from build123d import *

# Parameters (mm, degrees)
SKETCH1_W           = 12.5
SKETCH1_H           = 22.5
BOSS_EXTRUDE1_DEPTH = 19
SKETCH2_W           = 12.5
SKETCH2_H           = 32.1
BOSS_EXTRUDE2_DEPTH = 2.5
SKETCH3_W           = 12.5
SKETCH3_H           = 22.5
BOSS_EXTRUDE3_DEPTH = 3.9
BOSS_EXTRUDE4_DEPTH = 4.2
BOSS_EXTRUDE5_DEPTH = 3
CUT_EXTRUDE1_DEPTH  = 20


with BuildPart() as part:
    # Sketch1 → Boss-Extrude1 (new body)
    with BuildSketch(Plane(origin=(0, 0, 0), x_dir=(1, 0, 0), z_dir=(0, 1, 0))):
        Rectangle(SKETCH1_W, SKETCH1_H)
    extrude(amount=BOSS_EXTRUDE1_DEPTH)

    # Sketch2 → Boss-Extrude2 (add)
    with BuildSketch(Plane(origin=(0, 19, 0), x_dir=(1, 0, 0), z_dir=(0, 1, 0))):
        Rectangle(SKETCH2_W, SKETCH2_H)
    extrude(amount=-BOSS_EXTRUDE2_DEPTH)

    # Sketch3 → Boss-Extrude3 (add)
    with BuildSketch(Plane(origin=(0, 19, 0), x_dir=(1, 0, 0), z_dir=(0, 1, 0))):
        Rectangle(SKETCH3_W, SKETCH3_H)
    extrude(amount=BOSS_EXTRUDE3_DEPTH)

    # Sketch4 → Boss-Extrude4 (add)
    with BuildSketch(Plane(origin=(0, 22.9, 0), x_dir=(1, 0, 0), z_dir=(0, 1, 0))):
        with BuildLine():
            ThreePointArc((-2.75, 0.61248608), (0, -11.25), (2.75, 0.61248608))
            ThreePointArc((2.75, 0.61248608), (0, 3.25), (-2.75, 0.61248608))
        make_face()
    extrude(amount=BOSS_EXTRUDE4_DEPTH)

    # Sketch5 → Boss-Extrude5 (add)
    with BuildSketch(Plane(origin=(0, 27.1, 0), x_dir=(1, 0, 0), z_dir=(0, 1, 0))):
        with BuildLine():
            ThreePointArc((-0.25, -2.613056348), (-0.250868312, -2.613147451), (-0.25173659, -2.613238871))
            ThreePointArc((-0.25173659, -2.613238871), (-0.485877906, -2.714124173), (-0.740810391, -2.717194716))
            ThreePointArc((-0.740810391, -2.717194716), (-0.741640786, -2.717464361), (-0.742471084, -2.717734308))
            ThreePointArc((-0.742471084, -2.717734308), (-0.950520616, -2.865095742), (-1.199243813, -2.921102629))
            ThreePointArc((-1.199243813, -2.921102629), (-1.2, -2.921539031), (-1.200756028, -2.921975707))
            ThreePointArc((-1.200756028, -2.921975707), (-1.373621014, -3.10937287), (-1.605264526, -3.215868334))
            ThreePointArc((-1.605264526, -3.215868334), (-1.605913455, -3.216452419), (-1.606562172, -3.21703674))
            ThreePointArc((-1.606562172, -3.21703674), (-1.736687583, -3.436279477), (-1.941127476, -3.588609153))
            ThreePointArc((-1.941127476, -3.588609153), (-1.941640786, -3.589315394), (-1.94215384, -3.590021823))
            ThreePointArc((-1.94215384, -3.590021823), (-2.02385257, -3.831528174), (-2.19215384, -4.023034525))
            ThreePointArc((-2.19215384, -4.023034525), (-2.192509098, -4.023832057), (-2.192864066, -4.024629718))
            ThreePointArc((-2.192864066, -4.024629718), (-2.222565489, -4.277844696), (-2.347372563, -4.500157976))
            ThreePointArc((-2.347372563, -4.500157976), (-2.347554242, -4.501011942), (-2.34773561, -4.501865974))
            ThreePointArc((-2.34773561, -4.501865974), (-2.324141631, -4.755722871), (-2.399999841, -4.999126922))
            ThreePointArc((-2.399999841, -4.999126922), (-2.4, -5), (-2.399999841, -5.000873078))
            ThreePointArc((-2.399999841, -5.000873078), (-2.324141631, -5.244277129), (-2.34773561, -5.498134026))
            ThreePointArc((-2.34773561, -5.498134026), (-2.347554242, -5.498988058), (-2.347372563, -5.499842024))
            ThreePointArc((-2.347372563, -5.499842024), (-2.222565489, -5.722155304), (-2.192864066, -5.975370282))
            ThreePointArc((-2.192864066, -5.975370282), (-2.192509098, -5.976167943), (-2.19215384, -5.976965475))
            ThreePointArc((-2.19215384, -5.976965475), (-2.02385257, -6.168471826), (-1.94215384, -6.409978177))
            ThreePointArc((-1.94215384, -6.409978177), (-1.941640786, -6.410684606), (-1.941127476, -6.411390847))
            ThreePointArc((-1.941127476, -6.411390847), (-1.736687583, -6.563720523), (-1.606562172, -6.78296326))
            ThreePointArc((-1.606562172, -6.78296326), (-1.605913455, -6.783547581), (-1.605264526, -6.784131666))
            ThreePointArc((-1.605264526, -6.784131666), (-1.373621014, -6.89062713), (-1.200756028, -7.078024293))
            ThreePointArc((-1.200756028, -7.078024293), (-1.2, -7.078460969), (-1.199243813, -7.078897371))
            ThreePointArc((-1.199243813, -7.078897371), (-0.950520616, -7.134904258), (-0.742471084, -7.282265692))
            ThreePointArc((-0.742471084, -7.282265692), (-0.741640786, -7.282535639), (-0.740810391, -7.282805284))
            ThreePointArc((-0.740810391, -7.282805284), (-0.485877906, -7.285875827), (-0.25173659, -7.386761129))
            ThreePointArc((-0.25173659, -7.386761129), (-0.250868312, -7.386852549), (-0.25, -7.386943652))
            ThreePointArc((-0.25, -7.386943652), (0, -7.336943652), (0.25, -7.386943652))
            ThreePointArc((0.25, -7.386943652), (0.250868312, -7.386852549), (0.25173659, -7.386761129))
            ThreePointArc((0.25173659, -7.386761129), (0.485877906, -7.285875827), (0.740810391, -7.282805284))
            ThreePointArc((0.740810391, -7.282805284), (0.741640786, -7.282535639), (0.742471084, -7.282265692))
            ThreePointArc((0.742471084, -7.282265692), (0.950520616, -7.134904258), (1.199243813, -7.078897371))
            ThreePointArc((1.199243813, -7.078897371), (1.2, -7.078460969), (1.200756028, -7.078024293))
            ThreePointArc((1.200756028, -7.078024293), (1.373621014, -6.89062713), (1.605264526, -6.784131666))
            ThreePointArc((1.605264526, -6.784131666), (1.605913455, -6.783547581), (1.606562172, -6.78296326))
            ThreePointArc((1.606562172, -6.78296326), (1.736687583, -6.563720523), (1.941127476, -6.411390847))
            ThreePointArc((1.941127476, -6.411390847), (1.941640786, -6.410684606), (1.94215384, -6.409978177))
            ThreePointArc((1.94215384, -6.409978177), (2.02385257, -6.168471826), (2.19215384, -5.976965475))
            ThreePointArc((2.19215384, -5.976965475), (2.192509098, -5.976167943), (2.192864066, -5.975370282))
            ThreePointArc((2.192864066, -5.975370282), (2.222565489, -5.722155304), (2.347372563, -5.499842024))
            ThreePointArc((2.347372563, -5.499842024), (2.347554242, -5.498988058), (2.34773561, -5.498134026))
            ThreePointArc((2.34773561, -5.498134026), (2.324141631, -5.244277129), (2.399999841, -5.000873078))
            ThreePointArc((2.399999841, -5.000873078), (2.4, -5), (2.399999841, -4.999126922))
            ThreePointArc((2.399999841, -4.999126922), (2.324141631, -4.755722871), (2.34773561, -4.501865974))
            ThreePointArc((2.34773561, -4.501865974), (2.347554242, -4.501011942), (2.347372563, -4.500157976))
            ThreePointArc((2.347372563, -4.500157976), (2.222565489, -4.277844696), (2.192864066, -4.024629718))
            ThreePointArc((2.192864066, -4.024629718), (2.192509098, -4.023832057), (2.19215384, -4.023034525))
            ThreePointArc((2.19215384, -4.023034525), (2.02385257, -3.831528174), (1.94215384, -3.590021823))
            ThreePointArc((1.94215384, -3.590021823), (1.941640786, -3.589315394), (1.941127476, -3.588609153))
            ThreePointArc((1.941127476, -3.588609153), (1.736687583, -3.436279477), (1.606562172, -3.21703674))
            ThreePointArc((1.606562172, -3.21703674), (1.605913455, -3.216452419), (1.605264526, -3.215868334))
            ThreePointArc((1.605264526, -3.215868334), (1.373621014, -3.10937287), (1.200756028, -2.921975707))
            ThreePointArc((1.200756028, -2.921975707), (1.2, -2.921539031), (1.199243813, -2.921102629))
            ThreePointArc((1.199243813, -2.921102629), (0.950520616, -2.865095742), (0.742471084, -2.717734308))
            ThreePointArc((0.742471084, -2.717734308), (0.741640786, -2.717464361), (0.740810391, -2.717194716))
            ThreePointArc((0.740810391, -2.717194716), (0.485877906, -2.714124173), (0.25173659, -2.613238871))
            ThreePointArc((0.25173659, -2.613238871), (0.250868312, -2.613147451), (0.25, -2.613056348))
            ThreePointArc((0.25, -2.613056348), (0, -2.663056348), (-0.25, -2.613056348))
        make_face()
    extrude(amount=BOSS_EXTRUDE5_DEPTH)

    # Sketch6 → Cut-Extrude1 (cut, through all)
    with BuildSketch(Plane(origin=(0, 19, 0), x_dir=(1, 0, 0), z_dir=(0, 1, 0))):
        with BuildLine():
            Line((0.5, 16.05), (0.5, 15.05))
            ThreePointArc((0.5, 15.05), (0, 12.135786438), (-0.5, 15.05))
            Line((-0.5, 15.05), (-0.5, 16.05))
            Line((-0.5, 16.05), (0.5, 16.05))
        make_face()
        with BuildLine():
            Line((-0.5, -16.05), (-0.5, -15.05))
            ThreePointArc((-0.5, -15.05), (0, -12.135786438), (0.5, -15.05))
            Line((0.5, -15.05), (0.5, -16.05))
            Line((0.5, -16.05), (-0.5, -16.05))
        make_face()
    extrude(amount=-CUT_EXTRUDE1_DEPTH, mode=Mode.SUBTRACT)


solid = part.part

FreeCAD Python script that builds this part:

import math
import FreeCAD as App
import Part
import Sketcher
from FreeCAD import Vector


def add_polygon(sketch, points):
    """Adds a closed chain of lines whose ends are joined by coincident constraints."""
    first, n = sketch.GeometryCount, len(points)
    for a, b in zip(points, points[1:] + points[:1]):
        sketch.addGeometry(Part.LineSegment(App.Vector(*a, 0), App.Vector(*b, 0)), False)
    for i in range(n):
        sketch.addConstraint(Sketcher.Constraint("Coincident", first + i, 2, first + (i + 1) % n, 1))

doc = App.newDocument("Part")
body = doc.addObject("PartDesign::Body", "Body")

# Sketch on XZ plane
sketch1 = body.newObject("Sketcher::SketchObject", "Sketch")
sketch1.AttachmentSupport = (doc.getObject("XZ_Plane"), [""])
sketch1.MapMode = "FlatFace"
add_polygon(sketch1, [(-6.25, -11.25), (-6.25, 11.25), (6.25, 11.25), (6.25, -11.25)])  # lines 0-3
sketch1.addConstraint(Sketcher.Constraint("Vertical", 0))
sketch1.addConstraint(Sketcher.Constraint("Horizontal", 1))
sketch1.addConstraint(Sketcher.Constraint("Vertical", 2))
sketch1.addConstraint(Sketcher.Constraint("Horizontal", 3))
sketch1.addConstraint(Sketcher.Constraint("Symmetric", 0, 2, 2, 2, -1, 1))
sketch1.addConstraint(Sketcher.Constraint("DistanceX", 1, 1, 1, 2, 12.5))
sketch1.addConstraint(Sketcher.Constraint("DistanceY", 0, 1, 0, 2, 22.5))
pad1 = body.newObject("PartDesign::Pad", "Pad")
pad1.Profile = sketch1
pad1.Length = 19
pad1.Reversed = True

# Sketch on XZ plane
sketch2 = body.newObject("Sketcher::SketchObject", "Sketch001")
sketch2.AttachmentSupport = (doc.getObject("XZ_Plane"), [""])
sketch2.MapMode = "FlatFace"
sketch2.AttachmentOffset = App.Placement(Vector(0, 0, -19), App.Rotation())
add_polygon(sketch2, [(-6.25, -16.05), (-6.25, 16.05), (6.25, 16.05), (6.25, -16.05)])  # lines 0-3
sketch2.addConstraint(Sketcher.Constraint("Vertical", 0))
sketch2.addConstraint(Sketcher.Constraint("Horizontal", 1))
sketch2.addConstraint(Sketcher.Constraint("Vertical", 2))
sketch2.addConstraint(Sketcher.Constraint("Horizontal", 3))
sketch2.addConstraint(Sketcher.Constraint("Symmetric", 0, 2, 2, 2, -1, 1))
sketch2.addConstraint(Sketcher.Constraint("DistanceX", 1, 1, 1, 2, 12.5))
sketch2.addConstraint(Sketcher.Constraint("DistanceY", 0, 1, 0, 2, 32.1))
pad2 = body.newObject("PartDesign::Pad", "Pad001")
pad2.Profile = sketch2
pad2.Length = 2.5

# Sketch on XZ plane
sketch3 = body.newObject("Sketcher::SketchObject", "Sketch002")
sketch3.AttachmentSupport = (doc.getObject("XZ_Plane"), [""])
sketch3.MapMode = "FlatFace"
sketch3.AttachmentOffset = App.Placement(Vector(0, 0, -19), App.Rotation())
add_polygon(sketch3, [(-6.25, -11.25), (-6.25, 11.25), (6.25, 11.25), (6.25, -11.25)])  # lines 0-3
sketch3.addConstraint(Sketcher.Constraint("Vertical", 0))
sketch3.addConstraint(Sketcher.Constraint("Horizontal", 1))
sketch3.addConstraint(Sketcher.Constraint("Vertical", 2))
sketch3.addConstraint(Sketcher.Constraint("Horizontal", 3))
sketch3.addConstraint(Sketcher.Constraint("Symmetric", 0, 2, 2, 2, -1, 1))
sketch3.addConstraint(Sketcher.Constraint("DistanceX", 1, 1, 1, 2, 12.5))
sketch3.addConstraint(Sketcher.Constraint("DistanceY", 0, 1, 0, 2, 22.5))
pad3 = body.newObject("PartDesign::Pad", "Pad002")
pad3.Profile = sketch3
pad3.Length = 3.9
pad3.Reversed = True

# Sketch on XZ plane
sketch4 = body.newObject("Sketcher::SketchObject", "Sketch003")
sketch4.AttachmentSupport = (doc.getObject("XZ_Plane"), [""])
sketch4.MapMode = "FlatFace"
sketch4.AttachmentOffset = App.Placement(Vector(0, 0, -22.9), App.Rotation())
sketch4.addGeometry(Part.ArcOfCircle(Part.Circle(Vector(0, 5, 0), Vector(0, 0, 1), 6.25), math.radians(-63.896119), math.radians(243.896119)), False)
sketch4.addGeometry(Part.ArcOfCircle(Part.Circle(Vector(0, -0.497601, 0), Vector(0, 0, 1), 2.752399), math.radians(-177.607787), math.radians(-2.392213)), False)
sketch4.addConstraint(Sketcher.Constraint("Coincident", 0, 1, 1, 2))
sketch4.addConstraint(Sketcher.Constraint("Coincident", 1, 1, 0, 2))
sketch4.addConstraint(Sketcher.Constraint("Symmetric", 0, 1, 1, 1, -2))
sketch4.addConstraint(Sketcher.Constraint("Radius", 0, 6.25))
sketch4.addConstraint(Sketcher.Constraint("DistanceY", -1, 1, 0, 3, 5.0))
sketch4.addConstraint(Sketcher.Constraint("Radius", 1, 2.752399))
sketch4.addConstraint(Sketcher.Constraint("DistanceX", 1, 1, 0, 1, 5.5))
pad4 = body.newObject("PartDesign::Pad", "Pad003")
pad4.Profile = sketch4
pad4.Length = 4.2
pad4.Reversed = True

# Sketch on XZ plane
sketch5 = body.newObject("Sketcher::SketchObject", "Sketch004")
sketch5.AttachmentSupport = (doc.getObject("XZ_Plane"), [""])
sketch5.MapMode = "FlatFace"
sketch5.AttachmentOffset = App.Placement(Vector(0, 0, -27.1), App.Rotation())
sketch5.addGeometry(Part.ArcOfCircle(Part.Circle(Vector(-0.00095, 4.990963, 0), Vector(0, 0, 1), 2.390914), math.radians(-96.020924), math.radians(-95.979079)), False)
sketch5.addGeometry(Part.ArcOfCircle(Part.Circle(Vector(-0.621021, 2.078328, 0), Vector(0, 0, 1), 0.65), math.radians(55.380135), math.radians(100.619865)), False)
sketch5.addGeometry(Part.ArcOfCircle(Part.Circle(Vector(0.000975, 5.002999, 0), Vector(0, 0, 1), 2.403154), math.radians(-108.02082), math.radians(-107.979188)), False)
sketch5.addGeometry(Part.ArcOfCircle(Part.Circle(Vector(-1.214899, 2.271291, 0), Vector(0, 0, 1), 0.65), math.radians(43.380135), math.radians(88.619865)), False)
sketch5.addGeometry(Part.ArcOfCircle(Part.Circle(Vector(0.003104, 5.005376, 0), Vector(0, 0, 1), 2.406208), math.radians(-120.020797), math.radians(-119.979218)), False)
sketch5.addGeometry(Part.ArcOfCircle(Part.Circle(Vector(-1.755681, 2.583512, 0), Vector(0, 0, 1), 0.65), math.radians(31.380135), math.radians(76.619865)), False)
sketch5.addGeometry(Part.ArcOfCircle(Part.Circle(Vector(0.001885, 5.002093, 0), Vector(0, 0, 1), 2.402817), math.radians(-132.020826), math.radians(-131.979188)), False)
sketch5.addGeometry(Part.ArcOfCircle(Part.Circle(Vector(-2.219732, 3.001345, 0), Vector(0, 0, 1), 0.65), math.radians(19.380135), math.radians(64.619865)), False)
sketch5.addGeometry(Part.ArcOfCircle(Part.Circle(Vector(-0.000009, 4.999992, 0), Vector(0, 0, 1), 2.399988), math.radians(-144.020865), math.radians(-143.979179)), False)
sketch5.addGeometry(Part.ArcOfCircle(Part.Circle(Vector(-2.586769, 3.506528, 0), Vector(0, 0, 1), 0.65), math.radians(7.380135), math.radians(52.619865)), False)
sketch5.addGeometry(Part.ArcOfCircle(Part.Circle(Vector(0.001474, 5.000657, 0), Vector(0, 0, 1), 2.401614), math.radians(-156.02082), math.radians(-155.979161)), False)
sketch5.addGeometry(Part.ArcOfCircle(Part.Circle(Vector(-2.840752, 4.076984, 0), Vector(0, 0, 1), 0.65), math.radians(-4.619865), math.radians(40.619865)), False)
sketch5.addGeometry(Part.ArcOfCircle(Part.Circle(Vector(-0.002331, 4.999506, 0), Vector(0, 0, 1), 2.397617), math.radians(-168.020838), math.radians(-167.97911)), False)
sketch5.addGeometry(Part.ArcOfCircle(Part.Circle(Vector(-2.970581, 4.687779, 0), Vector(0, 0, 1), 0.65), math.radians(-16.619865), math.radians(28.619865)), False)
sketch5.addGeometry(Part.ArcOfCircle(Part.Circle(Vector(-0.00294, 5, 0), Vector(0, 0, 1), 2.39706), math.radians(179.979131), math.radians(180.020869)), False)
sketch5.addGeometry(Part.ArcOfCircle(Part.Circle(Vector(-2.970581, 5.312221, 0), Vector(0, 0, 1), 0.65), math.radians(-28.619865), math.radians(16.619865)), False)
sketch5.addGeometry(Part.ArcOfCircle(Part.Circle(Vector(-0.002331, 5.000494, 0), Vector(0, 0, 1), 2.397617), math.radians(167.97911), math.radians(168.020838)), False)
sketch5.addGeometry(Part.ArcOfCircle(Part.Circle(Vector(-2.840752, 5.923016, 0), Vector(0, 0, 1), 0.65), math.radians(-40.619865), math.radians(4.619865)), False)
sketch5.addGeometry(Part.ArcOfCircle(Part.Circle(Vector(0.001474, 4.999343, 0), Vector(0, 0, 1), 2.401614), math.radians(155.979161), math.radians(156.02082)), False)
sketch5.addGeometry(Part.ArcOfCircle(Part.Circle(Vector(-2.586769, 6.493472, 0), Vector(0, 0, 1), 0.65), math.radians(-52.619865), math.radians(-7.380135)), False)
sketch5.addGeometry(Part.ArcOfCircle(Part.Circle(Vector(-0.000009, 5.000008, 0), Vector(0, 0, 1), 2.399988), math.radians(143.979179), math.radians(144.020865)), False)
sketch5.addGeometry(Part.ArcOfCircle(Part.Circle(Vector(-2.219732, 6.998655, 0), Vector(0, 0, 1), 0.65), math.radians(-64.619865), math.radians(-19.380135)), False)
sketch5.addGeometry(Part.ArcOfCircle(Part.Circle(Vector(0.001885, 4.997907, 0), Vector(0, 0, 1), 2.402817), math.radians(131.979188), math.radians(132.020826)), False)
sketch5.addGeometry(Part.ArcOfCircle(Part.Circle(Vector(-1.755681, 7.416488, 0), Vector(0, 0, 1), 0.65), math.radians(-76.619865), math.radians(-31.380135)), False)
sketch5.addGeometry(Part.ArcOfCircle(Part.Circle(Vector(0.003104, 4.994624, 0), Vector(0, 0, 1), 2.406208), math.radians(119.979218), math.radians(120.020797)), False)
sketch5.addGeometry(Part.ArcOfCircle(Part.Circle(Vector(-1.214899, 7.728709, 0), Vector(0, 0, 1), 0.65), math.radians(-88.619865), math.radians(-43.380135)), False)
sketch5.addGeometry(Part.ArcOfCircle(Part.Circle(Vector(0.000975, 4.997001, 0), Vector(0, 0, 1), 2.403154), math.radians(107.979188), math.radians(108.02082)), False)
sketch5.addGeometry(Part.ArcOfCircle(Part.Circle(Vector(-0.621021, 7.921672, 0), Vector(0, 0, 1), 0.65), math.radians(-100.619865), math.radians(-55.380135)), False)
sketch5.addGeometry(Part.ArcOfCircle(Part.Circle(Vector(-0.00095, 5.009037, 0), Vector(0, 0, 1), 2.390914), math.radians(95.979079), math.radians(96.020924)), False)
sketch5.addGeometry(Part.ArcOfCircle(Part.Circle(Vector(0, 7.986944, 0), Vector(0, 0, 1), 0.65), math.radians(-112.619865), math.radians(-67.380135)), False)
sketch5.addGeometry(Part.ArcOfCircle(Part.Circle(Vector(0.00095, 5.009037, 0), Vector(0, 0, 1), 2.390914), math.radians(83.979076), math.radians(84.020921)), False)
sketch5.addGeometry(Part.ArcOfCircle(Part.Circle(Vector(0.621021, 7.921672, 0), Vector(0, 0, 1), 0.65), math.radians(-124.619865), math.radians(-79.380135)), False)
sketch5.addGeometry(Part.ArcOfCircle(Part.Circle(Vector(-0.000975, 4.997001, 0), Vector(0, 0, 1), 2.403154), math.radians(71.97918), math.radians(72.020812)), False)
sketch5.addGeometry(Part.ArcOfCircle(Part.Circle(Vector(1.214899, 7.728709, 0), Vector(0, 0, 1), 0.65), math.radians(-136.619865), math.radians(-91.380135)), False)
sketch5.addGeometry(Part.ArcOfCircle(Part.Circle(Vector(-0.003104, 4.994624, 0), Vector(0, 0, 1), 2.406208), math.radians(59.979203), math.radians(60.020782)), False)
sketch5.addGeometry(Part.ArcOfCircle(Part.Circle(Vector(1.755681, 7.416488, 0), Vector(0, 0, 1), 0.65), math.radians(-148.619865), math.radians(-103.380135)), False)
sketch5.addGeometry(Part.ArcOfCircle(Part.Circle(Vector(-0.001885, 4.997907, 0), Vector(0, 0, 1), 2.402817), math.radians(47.979174), math.radians(48.020812)), False)
sketch5.addGeometry(Part.ArcOfCircle(Part.Circle(Vector(2.219732, 6.998655, 0), Vector(0, 0, 1), 0.65), math.radians(-160.619865), math.radians(-115.380135)), False)
sketch5.addGeometry(Part.ArcOfCircle(Part.Circle(Vector(0.000009, 5.000008, 0), Vector(0, 0, 1), 2.399988), math.radians(35.979135), math.radians(36.020821)), False)
sketch5.addGeometry(Part.ArcOfCircle(Part.Circle(Vector(2.586769, 6.493472, 0), Vector(0, 0, 1), 0.65), math.radians(-172.619865), math.radians(-127.380135)), False)
sketch5.addGeometry(Part.ArcOfCircle(Part.Circle(Vector(-0.001474, 4.999343, 0), Vector(0, 0, 1), 2.401614), math.radians(23.97918), math.radians(24.020839)), False)
sketch5.addGeometry(Part.ArcOfCircle(Part.Circle(Vector(2.840752, 5.923016, 0), Vector(0, 0, 1), 0.65), math.radians(175.380135), math.radians(220.619865)), False)
sketch5.addGeometry(Part.ArcOfCircle(Part.Circle(Vector(0.002331, 5.000494, 0), Vector(0, 0, 1), 2.397617), math.radians(11.979162), math.radians(12.02089)), False)
sketch5.addGeometry(Part.ArcOfCircle(Part.Circle(Vector(2.970581, 5.312221, 0), Vector(0, 0, 1), 0.65), math.radians(163.380135), math.radians(208.619865)), False)
sketch5.addGeometry(Part.ArcOfCircle(Part.Circle(Vector(0.00294, 5, 0), Vector(0, 0, 1), 2.39706), math.radians(-0.020869), math.radians(0.020869)), False)
sketch5.addGeometry(Part.ArcOfCircle(Part.Circle(Vector(2.970581, 4.687779, 0), Vector(0, 0, 1), 0.65), math.radians(151.380135), math.radians(196.619865)), False)
sketch5.addGeometry(Part.ArcOfCircle(Part.Circle(Vector(0.002331, 4.999506, 0), Vector(0, 0, 1), 2.397617), math.radians(-12.02089), math.radians(-11.979162)), False)
sketch5.addGeometry(Part.ArcOfCircle(Part.Circle(Vector(2.840752, 4.076984, 0), Vector(0, 0, 1), 0.65), math.radians(139.380135), math.radians(184.619865)), False)
sketch5.addGeometry(Part.ArcOfCircle(Part.Circle(Vector(-0.001474, 5.000657, 0), Vector(0, 0, 1), 2.401614), math.radians(-24.020839), math.radians(-23.97918)), False)
sketch5.addGeometry(Part.ArcOfCircle(Part.Circle(Vector(2.586769, 3.506528, 0), Vector(0, 0, 1), 0.65), math.radians(127.380135), math.radians(172.619865)), False)
sketch5.addGeometry(Part.ArcOfCircle(Part.Circle(Vector(0.000009, 4.999992, 0), Vector(0, 0, 1), 2.399988), math.radians(-36.020821), math.radians(-35.979135)), False)
sketch5.addGeometry(Part.ArcOfCircle(Part.Circle(Vector(2.219732, 3.001345, 0), Vector(0, 0, 1), 0.65), math.radians(115.380135), math.radians(160.619865)), False)
sketch5.addGeometry(Part.ArcOfCircle(Part.Circle(Vector(-0.001885, 5.002093, 0), Vector(0, 0, 1), 2.402817), math.radians(-48.020812), math.radians(-47.979174)), False)
sketch5.addGeometry(Part.ArcOfCircle(Part.Circle(Vector(1.755681, 2.583512, 0), Vector(0, 0, 1), 0.65), math.radians(103.380135), math.radians(148.619865)), False)
sketch5.addGeometry(Part.ArcOfCircle(Part.Circle(Vector(-0.003104, 5.005376, 0), Vector(0, 0, 1), 2.406208), math.radians(-60.020782), math.radians(-59.979203)), False)
sketch5.addGeometry(Part.ArcOfCircle(Part.Circle(Vector(1.214899, 2.271291, 0), Vector(0, 0, 1), 0.65), math.radians(91.380135), math.radians(136.619865)), False)
sketch5.addGeometry(Part.ArcOfCircle(Part.Circle(Vector(-0.000975, 5.002999, 0), Vector(0, 0, 1), 2.403154), math.radians(-72.020812), math.radians(-71.97918)), False)
sketch5.addGeometry(Part.ArcOfCircle(Part.Circle(Vector(0.621021, 2.078328, 0), Vector(0, 0, 1), 0.65), math.radians(79.380135), math.radians(124.619865)), False)
sketch5.addGeometry(Part.ArcOfCircle(Part.Circle(Vector(0.00095, 4.990963, 0), Vector(0, 0, 1), 2.390914), math.radians(-84.020921), math.radians(-83.979076)), False)
sketch5.addGeometry(Part.ArcOfCircle(Part.Circle(Vector(0, 2.013056, 0), Vector(0, 0, 1), 0.65), math.radians(67.380135), math.radians(112.619865)), False)
sketch5.addConstraint(Sketcher.Constraint("Coincident", 0, 1, 1, 1))
sketch5.addConstraint(Sketcher.Constraint("Coincident", 1, 2, 2, 2))
sketch5.addConstraint(Sketcher.Constraint("Coincident", 2, 1, 3, 1))
sketch5.addConstraint(Sketcher.Constraint("Coincident", 3, 2, 4, 2))
sketch5.addConstraint(Sketcher.Constraint("Coincident", 4, 1, 5, 1))
sketch5.addConstraint(Sketcher.Constraint("Coincident", 5, 2, 6, 2))
sketch5.addConstraint(Sketcher.Constraint("Coincident", 6, 1, 7, 1))
sketch5.addConstraint(Sketcher.Constraint("Coincident", 7, 2, 8, 2))
sketch5.addConstraint(Sketcher.Constraint("Coincident", 8, 1, 9, 1))
sketch5.addConstraint(Sketcher.Constraint("Coincident", 9, 2, 10, 2))
sketch5.addConstraint(Sketcher.Constraint("Coincident", 10, 1, 11, 1))
sketch5.addConstraint(Sketcher.Constraint("Coincident", 11, 2, 12, 2))
sketch5.addConstraint(Sketcher.Constraint("Coincident", 12, 1, 13, 1))
sketch5.addConstraint(Sketcher.Constraint("Coincident", 13, 2, 14, 2))
sketch5.addConstraint(Sketcher.Constraint("Coincident", 14, 1, 15, 1))
sketch5.addConstraint(Sketcher.Constraint("Coincident", 15, 2, 16, 2))
sketch5.addConstraint(Sketcher.Constraint("Coincident", 16, 1, 17, 1))
sketch5.addConstraint(Sketcher.Constraint("Coincident", 17, 2, 18, 2))
sketch5.addConstraint(Sketcher.Constraint("Coincident", 18, 1, 19, 1))
sketch5.addConstraint(Sketcher.Constraint("Coincident", 19, 2, 20, 2))
sketch5.addConstraint(Sketcher.Constraint("Coincident", 20, 1, 21, 1))
sketch5.addConstraint(Sketcher.Constraint("Coincident", 21, 2, 22, 2))
sketch5.addConstraint(Sketcher.Constraint("Coincident", 22, 1, 23, 1))
sketch5.addConstraint(Sketcher.Constraint("Coincident", 23, 2, 24, 2))
sketch5.addConstraint(Sketcher.Constraint("Coincident", 24, 1, 25, 1))
sketch5.addConstraint(Sketcher.Constraint("Coincident", 25, 2, 26, 2))
sketch5.addConstraint(Sketcher.Constraint("Coincident", 26, 1, 27, 1))
sketch5.addConstraint(Sketcher.Constraint("Coincident", 27, 2, 28, 2))
sketch5.addConstraint(Sketcher.Constraint("Coincident", 28, 1, 29, 1))
sketch5.addConstraint(Sketcher.Constraint("Coincident", 29, 2, 30, 2))
sketch5.addConstraint(Sketcher.Constraint("Coincident", 30, 1, 31, 1))
sketch5.addConstraint(Sketcher.Constraint("Coincident", 31, 2, 32, 2))
sketch5.addConstraint(Sketcher.Constraint("Coincident", 32, 1, 33, 1))
sketch5.addConstraint(Sketcher.Constraint("Coincident", 33, 2, 34, 2))
sketch5.addConstraint(Sketcher.Constraint("Coincident", 34, 1, 35, 1))
sketch5.addConstraint(Sketcher.Constraint("Coincident", 35, 2, 36, 2))
sketch5.addConstraint(Sketcher.Constraint("Coincident", 36, 1, 37, 1))
sketch5.addConstraint(Sketcher.Constraint("Coincident", 37, 2, 38, 2))
sketch5.addConstraint(Sketcher.Constraint("Coincident", 38, 1, 39, 1))
sketch5.addConstraint(Sketcher.Constraint("Coincident", 39, 2, 40, 2))
sketch5.addConstraint(Sketcher.Constraint("Coincident", 40, 1, 41, 1))
sketch5.addConstraint(Sketcher.Constraint("Coincident", 41, 2, 42, 2))
sketch5.addConstraint(Sketcher.Constraint("Coincident", 42, 1, 43, 1))
sketch5.addConstraint(Sketcher.Constraint("Coincident", 43, 2, 44, 2))
sketch5.addConstraint(Sketcher.Constraint("Coincident", 44, 1, 45, 1))
sketch5.addConstraint(Sketcher.Constraint("Coincident", 45, 2, 46, 2))
sketch5.addConstraint(Sketcher.Constraint("Coincident", 46, 1, 47, 1))
sketch5.addConstraint(Sketcher.Constraint("Coincident", 47, 2, 48, 2))
sketch5.addConstraint(Sketcher.Constraint("Coincident", 48, 1, 49, 1))
sketch5.addConstraint(Sketcher.Constraint("Coincident", 49, 2, 50, 2))
sketch5.addConstraint(Sketcher.Constraint("Coincident", 50, 1, 51, 1))
sketch5.addConstraint(Sketcher.Constraint("Coincident", 51, 2, 52, 2))
sketch5.addConstraint(Sketcher.Constraint("Coincident", 52, 1, 53, 1))
sketch5.addConstraint(Sketcher.Constraint("Coincident", 53, 2, 54, 2))
sketch5.addConstraint(Sketcher.Constraint("Coincident", 54, 1, 55, 1))
sketch5.addConstraint(Sketcher.Constraint("Coincident", 55, 2, 56, 2))
sketch5.addConstraint(Sketcher.Constraint("Coincident", 56, 1, 57, 1))
sketch5.addConstraint(Sketcher.Constraint("Coincident", 57, 2, 58, 2))
sketch5.addConstraint(Sketcher.Constraint("Coincident", 58, 1, 59, 1))
sketch5.addConstraint(Sketcher.Constraint("Coincident", 59, 2, 0, 2))
sketch5.addConstraint(Sketcher.Constraint("Equal", 1, 3))
sketch5.addConstraint(Sketcher.Constraint("Equal", 3, 5))
sketch5.addConstraint(Sketcher.Constraint("Equal", 5, 7))
sketch5.addConstraint(Sketcher.Constraint("Equal", 7, 9))
sketch5.addConstraint(Sketcher.Constraint("Equal", 9, 11))
sketch5.addConstraint(Sketcher.Constraint("Equal", 11, 13))
sketch5.addConstraint(Sketcher.Constraint("Equal", 13, 15))
sketch5.addConstraint(Sketcher.Constraint("Equal", 12, 16))
sketch5.addConstraint(Sketcher.Constraint("Equal", 15, 17))
sketch5.addConstraint(Sketcher.Constraint("Equal", 10, 18))
sketch5.addConstraint(Sketcher.Constraint("Equal", 17, 19))
sketch5.addConstraint(Sketcher.Constraint("Equal", 8, 20))
sketch5.addConstraint(Sketcher.Constraint("Equal", 19, 21))
sketch5.addConstraint(Sketcher.Constraint("Equal", 6, 22))
sketch5.addConstraint(Sketcher.Constraint("Equal", 21, 23))
sketch5.addConstraint(Sketcher.Constraint("Equal", 4, 24))
sketch5.addConstraint(Sketcher.Constraint("Equal", 23, 25))
sketch5.addConstraint(Sketcher.Constraint("Equal", 2, 26))
sketch5.addConstraint(Sketcher.Constraint("Equal", 25, 27))
sketch5.addConstraint(Sketcher.Constraint("Equal", 0, 28))
sketch5.addConstraint(Sketcher.Constraint("Equal", 27, 29))
sketch5.addConstraint(Sketcher.Constraint("Equal", 28, 30))
sketch5.addConstraint(Sketcher.Constraint("Equal", 29, 31))
sketch5.addConstraint(Sketcher.Constraint("Equal", 26, 32))
sketch5.addConstraint(Sketcher.Constraint("Equal", 31, 33))
sketch5.addConstraint(Sketcher.Constraint("Equal", 24, 34))
sketch5.addConstraint(Sketcher.Constraint("Equal", 33, 35))
sketch5.addConstraint(Sketcher.Constraint("Equal", 22, 36))
sketch5.addConstraint(Sketcher.Constraint("Equal", 35, 37))
sketch5.addConstraint(Sketcher.Constraint("Equal", 20, 38))
sketch5.addConstraint(Sketcher.Constraint("Equal", 37, 39))
sketch5.addConstraint(Sketcher.Constraint("Equal", 18, 40))
sketch5.addConstraint(Sketcher.Constraint("Equal", 39, 41))
sketch5.addConstraint(Sketcher.Constraint("Equal", 16, 42))
sketch5.addConstraint(Sketcher.Constraint("Equal", 41, 43))
sketch5.addConstraint(Sketcher.Constraint("Equal", 14, 44))
sketch5.addConstraint(Sketcher.Constraint("Equal", 43, 45))
sketch5.addConstraint(Sketcher.Constraint("Equal", 42, 46))
sketch5.addConstraint(Sketcher.Constraint("Equal", 45, 47))
sketch5.addConstraint(Sketcher.Constraint("Equal", 40, 48))
sketch5.addConstraint(Sketcher.Constraint("Equal", 47, 49))
sketch5.addConstraint(Sketcher.Constraint("Equal", 38, 50))
sketch5.addConstraint(Sketcher.Constraint("Equal", 49, 51))
sketch5.addConstraint(Sketcher.Constraint("Equal", 36, 52))
sketch5.addConstraint(Sketcher.Constraint("Equal", 51, 53))
sketch5.addConstraint(Sketcher.Constraint("Equal", 34, 54))
sketch5.addConstraint(Sketcher.Constraint("Equal", 53, 55))
sketch5.addConstraint(Sketcher.Constraint("Equal", 32, 56))
sketch5.addConstraint(Sketcher.Constraint("Equal", 55, 57))
sketch5.addConstraint(Sketcher.Constraint("Equal", 30, 58))
sketch5.addConstraint(Sketcher.Constraint("Equal", 57, 59))
sketch5.addConstraint(Sketcher.Constraint("Symmetric", 28, 3, 30, 3, -2))
sketch5.addConstraint(Sketcher.Constraint("Symmetric", 27, 3, 31, 3, -2))
sketch5.addConstraint(Sketcher.Constraint("Symmetric", 26, 3, 32, 3, -2))
sketch5.addConstraint(Sketcher.Constraint("Symmetric", 25, 3, 33, 3, -2))
sketch5.addConstraint(Sketcher.Constraint("Symmetric", 24, 3, 34, 3, -2))
sketch5.addConstraint(Sketcher.Constraint("Symmetric", 23, 3, 35, 3, -2))
sketch5.addConstraint(Sketcher.Constraint("Symmetric", 22, 3, 36, 3, -2))
sketch5.addConstraint(Sketcher.Constraint("Symmetric", 21, 3, 37, 3, -2))
sketch5.addConstraint(Sketcher.Constraint("Symmetric", 20, 3, 38, 3, -2))
sketch5.addConstraint(Sketcher.Constraint("Symmetric", 19, 3, 39, 3, -2))
sketch5.addConstraint(Sketcher.Constraint("Symmetric", 18, 3, 40, 3, -2))
sketch5.addConstraint(Sketcher.Constraint("Symmetric", 17, 3, 41, 3, -2))
sketch5.addConstraint(Sketcher.Constraint("Symmetric", 16, 3, 42, 3, -2))
sketch5.addConstraint(Sketcher.Constraint("Symmetric", 15, 3, 43, 3, -2))
sketch5.addConstraint(Sketcher.Constraint("Symmetric", 14, 3, 44, 3, -2))
sketch5.addConstraint(Sketcher.Constraint("Symmetric", 13, 3, 45, 3, -2))
sketch5.addConstraint(Sketcher.Constraint("Symmetric", 12, 3, 46, 3, -2))
sketch5.addConstraint(Sketcher.Constraint("Symmetric", 11, 3, 47, 3, -2))
sketch5.addConstraint(Sketcher.Constraint("Symmetric", 10, 3, 48, 3, -2))
sketch5.addConstraint(Sketcher.Constraint("Symmetric", 9, 3, 49, 3, -2))
sketch5.addConstraint(Sketcher.Constraint("Symmetric", 8, 3, 50, 3, -2))
sketch5.addConstraint(Sketcher.Constraint("Symmetric", 7, 3, 51, 3, -2))
sketch5.addConstraint(Sketcher.Constraint("Symmetric", 6, 3, 52, 3, -2))
sketch5.addConstraint(Sketcher.Constraint("Symmetric", 5, 3, 53, 3, -2))
sketch5.addConstraint(Sketcher.Constraint("Symmetric", 4, 3, 54, 3, -2))
sketch5.addConstraint(Sketcher.Constraint("Symmetric", 3, 3, 55, 3, -2))
sketch5.addConstraint(Sketcher.Constraint("Symmetric", 2, 3, 56, 3, -2))
sketch5.addConstraint(Sketcher.Constraint("Symmetric", 1, 3, 57, 3, -2))
sketch5.addConstraint(Sketcher.Constraint("Symmetric", 0, 3, 58, 3, -2))
sketch5.addConstraint(Sketcher.Constraint("PointOnObject", 29, 3, -2))
sketch5.addConstraint(Sketcher.Constraint("PointOnObject", 59, 3, -2))
sketch5.addConstraint(Sketcher.Constraint("Vertical", 13, 3, 15, 3))
sketch5.addConstraint(Sketcher.Constraint("Vertical", 12, 3, 16, 3))
sketch5.addConstraint(Sketcher.Constraint("Vertical", 11, 3, 17, 3))
sketch5.addConstraint(Sketcher.Constraint("Vertical", 10, 3, 18, 3))
sketch5.addConstraint(Sketcher.Constraint("Vertical", 9, 3, 19, 3))
sketch5.addConstraint(Sketcher.Constraint("Vertical", 8, 3, 20, 3))
sketch5.addConstraint(Sketcher.Constraint("Vertical", 7, 3, 21, 3))
sketch5.addConstraint(Sketcher.Constraint("Vertical", 6, 3, 22, 3))
sketch5.addConstraint(Sketcher.Constraint("Vertical", 5, 3, 23, 3))
sketch5.addConstraint(Sketcher.Constraint("Vertical", 4, 3, 24, 3))
sketch5.addConstraint(Sketcher.Constraint("Vertical", 3, 3, 25, 3))
sketch5.addConstraint(Sketcher.Constraint("Vertical", 2, 3, 26, 3))
sketch5.addConstraint(Sketcher.Constraint("Vertical", 1, 3, 27, 3))
sketch5.addConstraint(Sketcher.Constraint("Vertical", 0, 3, 28, 3))
sketch5.addConstraint(Sketcher.Constraint("Vertical", 12, 1, 15, 2))
sketch5.addConstraint(Sketcher.Constraint("Vertical", 11, 2, 16, 1))
sketch5.addConstraint(Sketcher.Constraint("Vertical", 10, 1, 17, 2))
sketch5.addConstraint(Sketcher.Constraint("Vertical", 9, 2, 18, 1))
sketch5.addConstraint(Sketcher.Constraint("Vertical", 8, 1, 19, 2))
sketch5.addConstraint(Sketcher.Constraint("Vertical", 7, 2, 20, 1))
sketch5.addConstraint(Sketcher.Constraint("Vertical", 6, 1, 21, 2))
sketch5.addConstraint(Sketcher.Constraint("Vertical", 5, 2, 22, 1))
sketch5.addConstraint(Sketcher.Constraint("Vertical", 4, 1, 23, 2))
sketch5.addConstraint(Sketcher.Constraint("Vertical", 3, 2, 24, 1))
sketch5.addConstraint(Sketcher.Constraint("Vertical", 2, 1, 25, 2))
sketch5.addConstraint(Sketcher.Constraint("Vertical", 1, 2, 26, 1))
sketch5.addConstraint(Sketcher.Constraint("Vertical", 0, 1, 27, 2))
sketch5.addConstraint(Sketcher.Constraint("Vertical", 29, 2, 58, 1))
sketch5.addConstraint(Sketcher.Constraint("Radius", 1, 0.65))
sketch5.addConstraint(Sketcher.Constraint("DistanceY", -1, 1, 14, 3, 5.0))
sketch5.addConstraint(Sketcher.Constraint("DistanceX", 13, 2, -1, 1, 2.4))
sketch5.addConstraint(Sketcher.Constraint("DistanceX", 28, 1, -1, 1, 0.25))
sketch5.addConstraint(Sketcher.Constraint("Radius", 14, 2.39706))
sketch5.addConstraint(Sketcher.Constraint("DistanceY", -1, 1, 2, 3, 5.002999))
sketch5.addConstraint(Sketcher.Constraint("DistanceY", -1, 1, 26, 3, 4.997001))
sketch5.addConstraint(Sketcher.Constraint("Radius", 0, 2.390914))
sketch5.addConstraint(Sketcher.Constraint("Radius", 2, 2.403154))
sketch5.addConstraint(Sketcher.Constraint("Radius", 4, 2.406208))
sketch5.addConstraint(Sketcher.Constraint("Radius", 6, 2.402817))
sketch5.addConstraint(Sketcher.Constraint("Radius", 8, 2.399988))
sketch5.addConstraint(Sketcher.Constraint("Radius", 10, 2.401614))
sketch5.addConstraint(Sketcher.Constraint("Radius", 12, 2.397617))
sketch5.addConstraint(Sketcher.Constraint("DistanceX", 3, 3, -1, 1, 1.214899))
sketch5.addConstraint(Sketcher.Constraint("DistanceX", 0, 3, -1, 1, 0.00095))
sketch5.addConstraint(Sketcher.Constraint("DistanceX", 1, 3, -1, 1, 0.621021))
sketch5.addConstraint(Sketcher.Constraint("DistanceY", -1, 1, 1, 3, 2.078328))
sketch5.addConstraint(Sketcher.Constraint("DistanceY", -1, 1, 3, 3, 2.271291))
sketch5.addConstraint(Sketcher.Constraint("DistanceX", 5, 3, -1, 1, 1.755681))
sketch5.addConstraint(Sketcher.Constraint("DistanceY", -1, 1, 5, 3, 2.583512))
sketch5.addConstraint(Sketcher.Constraint("DistanceX", 7, 3, -1, 1, 2.219732))
sketch5.addConstraint(Sketcher.Constraint("DistanceX", 9, 3, -1, 1, 2.586769))
sketch5.addConstraint(Sketcher.Constraint("DistanceY", -1, 1, 9, 3, 3.506528))
sketch5.addConstraint(Sketcher.Constraint("DistanceX", 12, 3, -1, 1, 0.002331))
sketch5.addConstraint(Sketcher.Constraint("DistanceX", 13, 3, -1, 1, 2.970581))
sketch5.addConstraint(Sketcher.Constraint("DistanceY", -1, 1, 13, 3, 4.687779))
sketch5.addConstraint(Sketcher.Constraint("DistanceY", -1, 1, 0, 1, 2.613239))
sketch5.addConstraint(Sketcher.Constraint("DistanceX", 1, 2, -1, 1, 0.74081))
sketch5.addConstraint(Sketcher.Constraint("DistanceY", -1, 1, 5, 2, 3.215868))
sketch5.addConstraint(Sketcher.Constraint("DistanceY", -1, 1, 7, 2, 3.588609))
sketch5.addConstraint(Sketcher.Constraint("DistanceY", -1, 1, 8, 1, 3.590022))
sketch5.addConstraint(Sketcher.Constraint("DistanceY", -1, 1, 10, 1, 4.02463))
sketch5.addConstraint(Sketcher.Constraint("DistanceX", -1, 1, 4, 3, 0.003104))
sketch5.addConstraint(Sketcher.Constraint("DistanceY", -1, 1, 4, 3, 5.005376))
sketch5.addConstraint(Sketcher.Constraint("DistanceX", -1, 1, 6, 3, 0.001885))
sketch5.addConstraint(Sketcher.Constraint("DistanceY", -1, 1, 8, 3, 4.999992))
sketch5.addConstraint(Sketcher.Constraint("DistanceX", -1, 1, 10, 3, 0.001474))
sketch5.addConstraint(Sketcher.Constraint("DistanceY", -1, 1, 10, 3, 5.000657))
sketch5.addConstraint(Sketcher.Constraint("DistanceX", 11, 3, -1, 1, 2.840752))
sketch5.addConstraint(Sketcher.Constraint("DistanceY", -1, 1, 12, 3, 4.999506))
pad5 = body.newObject("PartDesign::Pad", "Pad004")
pad5.Profile = sketch5
pad5.Length = 3
pad5.Reversed = True

# Sketch on XZ plane
sketch6 = body.newObject("Sketcher::SketchObject", "Sketch005")
sketch6.AttachmentSupport = (doc.getObject("XZ_Plane"), [""])
sketch6.MapMode = "FlatFace"
sketch6.AttachmentOffset = App.Placement(Vector(0, 0, -19), App.Rotation())
sketch6.addGeometry(Part.LineSegment(Vector(0.5, -15.05, 0), Vector(0.5, -16.05, 0)), False)
sketch6.addGeometry(Part.LineSegment(Vector(0.5, -16.05, 0), Vector(-0.5, -16.05, 0)), False)
sketch6.addGeometry(Part.LineSegment(Vector(-0.5, -16.05, 0), Vector(-0.5, -15.05, 0)), False)
sketch6.addGeometry(Part.ArcOfCircle(Part.Circle(Vector(0, -13.635786, 0), Vector(0, 0, 1), 1.5), math.radians(-70.528779), math.radians(250.528779)), False)
sketch6.addGeometry(Part.LineSegment(Vector(-0.5, 15.05, 0), Vector(-0.5, 16.05, 0)), False)
sketch6.addGeometry(Part.LineSegment(Vector(-0.5, 16.05, 0), Vector(0.5, 16.05, 0)), False)
sketch6.addGeometry(Part.LineSegment(Vector(0.5, 16.05, 0), Vector(0.5, 15.05, 0)), False)
sketch6.addGeometry(Part.ArcOfCircle(Part.Circle(Vector(0, 13.635786, 0), Vector(0, 0, 1), 1.5), math.radians(109.471221), math.radians(430.528779)), False)
sketch6.addConstraint(Sketcher.Constraint("Coincident", 0, 2, 1, 1))
sketch6.addConstraint(Sketcher.Constraint("Coincident", 1, 2, 2, 1))
sketch6.addConstraint(Sketcher.Constraint("Coincident", 2, 2, 3, 2))
sketch6.addConstraint(Sketcher.Constraint("Coincident", 3, 1, 0, 1))
sketch6.addConstraint(Sketcher.Constraint("Coincident", 4, 2, 5, 1))
sketch6.addConstraint(Sketcher.Constraint("Coincident", 5, 2, 6, 1))
sketch6.addConstraint(Sketcher.Constraint("Coincident", 6, 2, 7, 2))
sketch6.addConstraint(Sketcher.Constraint("Coincident", 7, 1, 4, 1))
sketch6.addConstraint(Sketcher.Constraint("Vertical", 0))
sketch6.addConstraint(Sketcher.Constraint("Horizontal", 1))
sketch6.addConstraint(Sketcher.Constraint("Vertical", 2))
sketch6.addConstraint(Sketcher.Constraint("Vertical", 4))
sketch6.addConstraint(Sketcher.Constraint("Horizontal", 5))
sketch6.addConstraint(Sketcher.Constraint("Vertical", 6))
sketch6.addConstraint(Sketcher.Constraint("Equal", 3, 7))
sketch6.addConstraint(Sketcher.Constraint("Symmetric", 3, 3, 7, 3, -1, 1))
sketch6.addConstraint(Sketcher.Constraint("Symmetric", 0, 2, 4, 2, -1, 1))
sketch6.addConstraint(Sketcher.Constraint("Symmetric", 2, 2, 3, 1, -2))
sketch6.addConstraint(Sketcher.Constraint("Horizontal", 6, 2, 7, 1))
sketch6.addConstraint(Sketcher.Constraint("Equal", 5, 0))
sketch6.addConstraint(Sketcher.Constraint("Radius", 3, 1.5))
sketch6.addConstraint(Sketcher.Constraint("DistanceX", 1, 2, 1, 1, 1.0))
sketch6.addConstraint(Sketcher.Constraint("DistanceY", 2, 2, 4, 2, 31.1))
pocket1 = body.newObject("PartDesign::Pocket", "Pocket")
pocket1.Profile = sketch6
pocket1.Type = "ThroughAll"
pocket1.Reversed = True

doc.recompute()
